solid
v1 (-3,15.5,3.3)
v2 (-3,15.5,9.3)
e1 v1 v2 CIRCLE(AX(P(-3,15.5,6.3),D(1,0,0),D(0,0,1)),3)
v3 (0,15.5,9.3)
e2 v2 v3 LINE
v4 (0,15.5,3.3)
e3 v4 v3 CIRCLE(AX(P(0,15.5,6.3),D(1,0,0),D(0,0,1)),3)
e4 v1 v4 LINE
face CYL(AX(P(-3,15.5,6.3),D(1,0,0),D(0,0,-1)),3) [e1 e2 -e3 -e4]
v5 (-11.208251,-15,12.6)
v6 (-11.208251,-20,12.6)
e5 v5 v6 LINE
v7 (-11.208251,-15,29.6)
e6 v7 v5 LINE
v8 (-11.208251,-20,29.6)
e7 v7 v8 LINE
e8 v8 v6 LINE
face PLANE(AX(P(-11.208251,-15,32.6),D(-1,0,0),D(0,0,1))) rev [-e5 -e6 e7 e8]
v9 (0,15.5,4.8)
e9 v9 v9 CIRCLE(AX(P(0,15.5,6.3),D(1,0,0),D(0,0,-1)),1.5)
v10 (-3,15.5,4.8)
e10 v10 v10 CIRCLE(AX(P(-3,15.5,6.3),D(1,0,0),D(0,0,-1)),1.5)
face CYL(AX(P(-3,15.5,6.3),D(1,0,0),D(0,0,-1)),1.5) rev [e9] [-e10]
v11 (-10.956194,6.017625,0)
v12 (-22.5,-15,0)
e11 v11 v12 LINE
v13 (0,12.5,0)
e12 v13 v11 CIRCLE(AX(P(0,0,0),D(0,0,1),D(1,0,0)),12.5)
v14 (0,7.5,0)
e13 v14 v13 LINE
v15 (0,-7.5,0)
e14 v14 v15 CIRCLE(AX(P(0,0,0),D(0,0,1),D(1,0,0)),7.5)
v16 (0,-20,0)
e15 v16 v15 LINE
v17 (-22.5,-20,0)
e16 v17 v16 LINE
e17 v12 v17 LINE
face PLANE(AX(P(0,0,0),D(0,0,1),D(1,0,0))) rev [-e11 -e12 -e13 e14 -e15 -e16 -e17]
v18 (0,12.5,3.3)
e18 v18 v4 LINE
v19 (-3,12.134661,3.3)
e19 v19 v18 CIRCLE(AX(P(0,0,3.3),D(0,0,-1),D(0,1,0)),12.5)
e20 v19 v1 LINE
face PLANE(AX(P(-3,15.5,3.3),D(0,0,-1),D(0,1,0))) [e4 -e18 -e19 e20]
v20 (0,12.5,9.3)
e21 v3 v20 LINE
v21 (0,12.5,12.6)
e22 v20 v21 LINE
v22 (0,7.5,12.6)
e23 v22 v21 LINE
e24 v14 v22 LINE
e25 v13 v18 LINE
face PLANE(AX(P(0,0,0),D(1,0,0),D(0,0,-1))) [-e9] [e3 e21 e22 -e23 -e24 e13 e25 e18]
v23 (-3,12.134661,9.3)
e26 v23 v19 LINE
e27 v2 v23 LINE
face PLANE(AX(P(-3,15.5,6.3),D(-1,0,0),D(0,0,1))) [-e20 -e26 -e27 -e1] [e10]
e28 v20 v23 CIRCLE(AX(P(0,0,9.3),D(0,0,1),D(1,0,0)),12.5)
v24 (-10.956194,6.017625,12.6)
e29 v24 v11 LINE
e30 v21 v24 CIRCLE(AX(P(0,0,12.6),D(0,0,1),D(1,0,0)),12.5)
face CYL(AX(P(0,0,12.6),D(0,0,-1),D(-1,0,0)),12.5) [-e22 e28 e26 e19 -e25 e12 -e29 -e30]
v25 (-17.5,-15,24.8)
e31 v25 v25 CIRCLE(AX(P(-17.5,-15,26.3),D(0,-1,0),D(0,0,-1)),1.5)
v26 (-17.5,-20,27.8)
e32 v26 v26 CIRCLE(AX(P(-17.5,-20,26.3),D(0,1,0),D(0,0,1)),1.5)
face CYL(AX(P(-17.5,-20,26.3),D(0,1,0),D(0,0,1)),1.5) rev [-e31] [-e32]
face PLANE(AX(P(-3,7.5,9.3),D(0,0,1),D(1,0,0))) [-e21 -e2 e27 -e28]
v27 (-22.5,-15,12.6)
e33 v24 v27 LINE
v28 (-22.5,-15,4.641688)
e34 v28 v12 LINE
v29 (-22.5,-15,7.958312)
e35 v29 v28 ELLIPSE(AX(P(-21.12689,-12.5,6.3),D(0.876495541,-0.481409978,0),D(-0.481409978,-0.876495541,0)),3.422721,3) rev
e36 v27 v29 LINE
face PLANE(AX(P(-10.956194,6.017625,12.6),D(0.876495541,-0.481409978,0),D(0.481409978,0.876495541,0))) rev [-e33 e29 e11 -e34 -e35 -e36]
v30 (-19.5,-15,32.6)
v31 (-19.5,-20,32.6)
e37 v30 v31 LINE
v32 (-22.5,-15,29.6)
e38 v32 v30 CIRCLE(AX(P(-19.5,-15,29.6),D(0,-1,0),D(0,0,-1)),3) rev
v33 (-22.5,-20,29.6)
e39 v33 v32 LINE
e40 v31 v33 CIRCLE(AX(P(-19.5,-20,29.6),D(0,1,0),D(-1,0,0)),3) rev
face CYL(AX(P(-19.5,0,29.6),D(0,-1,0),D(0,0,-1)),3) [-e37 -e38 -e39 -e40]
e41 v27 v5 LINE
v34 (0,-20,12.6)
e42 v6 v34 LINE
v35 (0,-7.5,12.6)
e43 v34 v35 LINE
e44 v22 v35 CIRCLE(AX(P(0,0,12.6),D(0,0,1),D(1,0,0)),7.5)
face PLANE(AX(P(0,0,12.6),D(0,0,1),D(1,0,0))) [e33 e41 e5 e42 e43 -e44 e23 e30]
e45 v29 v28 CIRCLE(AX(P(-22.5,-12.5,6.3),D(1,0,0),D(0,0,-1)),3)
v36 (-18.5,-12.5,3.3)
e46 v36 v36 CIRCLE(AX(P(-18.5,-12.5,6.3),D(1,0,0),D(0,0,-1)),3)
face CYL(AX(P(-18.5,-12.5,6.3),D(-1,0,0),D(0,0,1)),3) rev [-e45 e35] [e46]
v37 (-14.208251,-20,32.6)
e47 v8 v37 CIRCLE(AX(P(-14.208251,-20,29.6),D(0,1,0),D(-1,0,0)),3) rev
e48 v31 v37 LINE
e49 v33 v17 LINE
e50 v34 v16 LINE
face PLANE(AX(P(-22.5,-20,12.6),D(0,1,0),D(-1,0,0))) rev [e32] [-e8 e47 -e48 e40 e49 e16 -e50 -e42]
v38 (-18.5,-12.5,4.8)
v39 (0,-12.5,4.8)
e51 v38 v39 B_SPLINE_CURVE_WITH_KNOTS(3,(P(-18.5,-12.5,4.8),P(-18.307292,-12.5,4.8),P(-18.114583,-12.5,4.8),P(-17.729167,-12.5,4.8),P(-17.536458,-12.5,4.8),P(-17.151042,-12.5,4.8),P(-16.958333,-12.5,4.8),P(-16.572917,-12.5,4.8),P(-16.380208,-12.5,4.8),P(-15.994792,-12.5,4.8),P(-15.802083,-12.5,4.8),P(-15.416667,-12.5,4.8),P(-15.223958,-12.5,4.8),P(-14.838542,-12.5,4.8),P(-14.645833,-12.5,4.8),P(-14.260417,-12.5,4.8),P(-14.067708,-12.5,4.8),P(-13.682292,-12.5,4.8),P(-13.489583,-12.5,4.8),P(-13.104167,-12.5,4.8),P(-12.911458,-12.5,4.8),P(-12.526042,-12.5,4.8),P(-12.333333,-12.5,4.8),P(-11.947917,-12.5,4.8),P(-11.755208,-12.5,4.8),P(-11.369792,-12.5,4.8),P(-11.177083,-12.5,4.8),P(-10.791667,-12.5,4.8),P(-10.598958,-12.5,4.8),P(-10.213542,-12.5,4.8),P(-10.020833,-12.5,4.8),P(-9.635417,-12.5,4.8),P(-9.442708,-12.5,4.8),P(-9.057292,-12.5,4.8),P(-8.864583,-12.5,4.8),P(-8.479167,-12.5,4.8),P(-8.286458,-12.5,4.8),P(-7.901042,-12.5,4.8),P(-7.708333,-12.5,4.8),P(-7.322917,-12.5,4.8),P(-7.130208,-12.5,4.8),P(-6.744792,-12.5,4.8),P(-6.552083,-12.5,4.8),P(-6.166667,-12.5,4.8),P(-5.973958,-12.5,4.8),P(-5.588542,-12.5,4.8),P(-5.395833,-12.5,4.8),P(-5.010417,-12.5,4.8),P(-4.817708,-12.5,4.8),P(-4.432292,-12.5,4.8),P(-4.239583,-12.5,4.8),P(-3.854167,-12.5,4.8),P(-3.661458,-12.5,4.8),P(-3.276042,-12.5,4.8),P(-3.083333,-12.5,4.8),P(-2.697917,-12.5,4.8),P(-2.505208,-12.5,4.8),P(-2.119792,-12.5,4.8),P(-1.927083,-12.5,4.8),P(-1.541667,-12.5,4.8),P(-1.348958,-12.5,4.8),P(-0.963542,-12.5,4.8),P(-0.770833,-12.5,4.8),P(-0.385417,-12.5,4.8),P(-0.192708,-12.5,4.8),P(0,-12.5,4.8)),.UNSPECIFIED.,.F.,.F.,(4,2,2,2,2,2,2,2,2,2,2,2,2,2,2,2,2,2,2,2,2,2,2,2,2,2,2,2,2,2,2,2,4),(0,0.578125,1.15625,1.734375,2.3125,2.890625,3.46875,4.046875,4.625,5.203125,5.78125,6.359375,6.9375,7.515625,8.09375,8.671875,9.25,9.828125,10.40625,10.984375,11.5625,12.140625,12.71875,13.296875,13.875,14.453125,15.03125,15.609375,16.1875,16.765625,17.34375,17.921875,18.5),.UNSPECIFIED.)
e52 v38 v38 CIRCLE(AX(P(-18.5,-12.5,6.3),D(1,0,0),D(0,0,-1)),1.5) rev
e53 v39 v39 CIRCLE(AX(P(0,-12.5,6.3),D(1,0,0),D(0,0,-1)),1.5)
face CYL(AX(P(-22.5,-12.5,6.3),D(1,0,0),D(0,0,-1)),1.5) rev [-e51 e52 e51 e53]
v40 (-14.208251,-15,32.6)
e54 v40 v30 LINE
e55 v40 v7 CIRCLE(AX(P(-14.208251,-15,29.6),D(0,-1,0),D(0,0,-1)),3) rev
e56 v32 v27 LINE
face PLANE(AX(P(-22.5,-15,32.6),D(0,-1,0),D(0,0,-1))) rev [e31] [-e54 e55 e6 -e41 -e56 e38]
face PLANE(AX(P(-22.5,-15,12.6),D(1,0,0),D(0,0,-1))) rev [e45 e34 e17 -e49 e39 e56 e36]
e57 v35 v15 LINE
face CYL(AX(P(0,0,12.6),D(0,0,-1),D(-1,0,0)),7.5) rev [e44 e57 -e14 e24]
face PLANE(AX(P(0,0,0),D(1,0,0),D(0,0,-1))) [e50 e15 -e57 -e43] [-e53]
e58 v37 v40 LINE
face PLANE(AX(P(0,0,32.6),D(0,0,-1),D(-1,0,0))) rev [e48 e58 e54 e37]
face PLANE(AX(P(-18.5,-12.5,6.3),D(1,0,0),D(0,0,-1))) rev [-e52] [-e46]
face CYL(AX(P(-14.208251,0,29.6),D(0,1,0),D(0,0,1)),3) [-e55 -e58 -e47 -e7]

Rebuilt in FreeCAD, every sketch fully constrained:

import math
import FreeCAD as App
import Part
import Sketcher
from FreeCAD import Vector
Q = App.Units.Quantity


def edges_at(feature, points):
    """Names of the edges that pass closest to the given points."""
    edges = feature.Shape.Edges
    near = lambda p: min(range(len(edges)), key=lambda i: edges[i].distToShape(Part.Vertex(*p))[0])
    return sorted({f"Edge{near(p) + 1}" for p in points})


def add_polygon(sketch, points):
    """Adds a closed chain of lines whose ends are joined by coincident constraints."""
    first, n = sketch.GeometryCount, len(points)
    for a, b in zip(points, points[1:] + points[:1]):
        sketch.addGeometry(Part.LineSegment(App.Vector(*a, 0), App.Vector(*b, 0)), False)
    for i in range(n):
        sketch.addConstraint(Sketcher.Constraint("Coincident", first + i, 2, first + (i + 1) % n, 1))

doc = App.newDocument("Part")
body = doc.addObject("PartDesign::Body", "Body")

# Sketch on XY plane
sketch1 = doc.addObject("Sketcher::SketchObject", "Sketch")
body.addObject(sketch1)
sketch1.AttachmentSupport = (doc.XY_Plane, [""])
sketch1.MapMode = "FlatFace"
sketch1.addGeometry([
    Part.LineSegment(Vector(-10.956194, 6.017625, 0), Vector(-22.5, -15, 0)),  # 0
    Part.LineSegment(Vector(-22.5, -15, 0), Vector(-22.5, -20, 0)),  # 1
    Part.LineSegment(Vector(-22.5, -20, 0), Vector(22.5, -20, 0)),  # 2
    Part.LineSegment(Vector(22.5, -20, 0), Vector(22.5, -15, 0)),  # 3
    Part.LineSegment(Vector(22.5, -15, 0), Vector(10.956194, 6.017625, 0)),  # 4
    Part.ArcOfCircle(Part.Circle(Vector(0, 0, 0), Vector(0, 0, 1), 12.5), math.radians(28.77753), math.radians(151.22247)),  # 5
    Part.Circle(Vector(0, 0, 0), Vector(0, 0, 1), 7.5),  # 6
], False)
sketch1.addConstraint([
    Sketcher.Constraint("Coincident", 0, 2, 1, 1),
    Sketcher.Constraint("Coincident", 1, 2, 2, 1),
    Sketcher.Constraint("Coincident", 2, 2, 3, 1),
    Sketcher.Constraint("Coincident", 3, 2, 4, 1),
    Sketcher.Constraint("Tangent", 4, 2, 5, 1),
    Sketcher.Constraint("Tangent", 5, 2, 0, 1),
    Sketcher.Constraint("Vertical", 1),
    Sketcher.Constraint("Horizontal", 2),
    Sketcher.Constraint("Vertical", 3),
    Sketcher.Constraint("Coincident", 5, 3, -1, 1),
    Sketcher.Constraint("Coincident", 6, 3, -1, 1),
    Sketcher.Constraint("Symmetric", 0, 2, 3, 2, -2),
    Sketcher.Constraint("Diameter", 6, Q("15 mm")),
    Sketcher.Constraint("Radius", 5, Q("12.5 mm")),
    Sketcher.Constraint("DistanceX", 2, 1, 2, 2, Q("45 mm")),
    Sketcher.Constraint("DistanceY", 1, 2, 1, 1, Q("5 mm")),
    Sketcher.Constraint("DistanceY", 0, 2, -1, 1, Q("15 mm")),
])
pad1 = doc.addObject("PartDesign::Pad", "Pad")
body.addObject(pad1)
pad1.Profile = sketch1
pad1.Length = 12.6

# Sketch on XY plane
sketch2 = doc.addObject("Sketcher::SketchObject", "Sketch001")
body.addObject(sketch2)
sketch2.AttachmentSupport = (doc.XY_Plane, [""])
sketch2.MapMode = "FlatFace"
add_polygon(sketch2, [(-22.5, -15), (-22.5, -20), (-11.208251, -20), (-11.208251, -15)])  # lines 0-3
add_polygon(sketch2, [(11.208251, -15), (11.208251, -20), (22.5, -20), (22.5, -15)])  # lines 4-7
sketch2.addConstraint([
    Sketcher.Constraint("Vertical", 0),
    Sketcher.Constraint("Horizontal", 1),
    Sketcher.Constraint("Vertical", 2),
    Sketcher.Constraint("Horizontal", 3),
    Sketcher.Constraint("Vertical", 4),
    Sketcher.Constraint("Horizontal", 5),
    Sketcher.Constraint("Vertical", 6),
    Sketcher.Constraint("Horizontal", 7),
    Sketcher.Constraint("Symmetric", 1, 2, 4, 2, -2),
    Sketcher.Constraint("Symmetric", 3, 2, 6, 2, -2),
    Sketcher.Constraint("DistanceY", 0, 2, 0, 1, Q("5 mm")),
    Sketcher.Constraint("DistanceY", 0, 2, -1, 1, Q("20 mm")),
    Sketcher.Constraint("DistanceX", 0, 2, 5, 2, Q("45 mm")),
    Sketcher.Constraint("DistanceX", 1, 1, 1, 2, Q("11.291749 mm")),
])
pad2 = doc.addObject("PartDesign::Pad", "Pad001")
body.addObject(pad2)
pad2.Profile = sketch2
pad2.Length = 32.6

# Sketch on XZ plane
sketch3 = doc.addObject("Sketcher::SketchObject", "Sketch002")
body.addObject(sketch3)
sketch3.AttachmentSupport = (doc.XZ_Plane, [""])
sketch3.MapMode = "FlatFace"
sketch3.addGeometry([
    Part.Circle(Vector(-17.5, 26.3, 0), Vector(0, 0, 1), 1.5),
    Part.Circle(Vector(17.5, 26.3, 0), Vector(0, 0, 1), 1.5),
], False)
sketch3.addConstraint([
    Sketcher.Constraint("Equal", 0, 1),
    Sketcher.Constraint("Symmetric", 0, 3, 1, 3, -2),
    Sketcher.Constraint("Diameter", 0, Q("3 mm")),
    Sketcher.Constraint("DistanceX", 0, 3, 1, 3, Q("35 mm")),
    Sketcher.Constraint("DistanceY", -1, 1, 0, 3, Q("26.3 mm")),
])
pocket1 = doc.addObject("PartDesign::Pocket", "Pocket")
body.addObject(pocket1)
pocket1.Profile = sketch3
pocket1.Type = "ThroughAll"
pocket1.Reversed = True
doc.recompute()

fillet = doc.addObject("PartDesign::Fillet", "Fillet")
body.addObject(fillet)
fillet.Base = (pocket1, edges_at(pocket1, [(-22.5, -17.5, 32.6), (-11.208, -17.5, 32.6), (11.208, -17.5, 32.6)]))
fillet.Radius = 3

# Sketch on XZ plane
sketch4 = doc.addObject("Sketcher::SketchObject", "Sketch003")
body.addObject(sketch4)
sketch4.AttachmentSupport = (doc.XZ_Plane, [""])
sketch4.MapMode = "FlatFace"
add_polygon(sketch4, [(22.5, 17.6), (22.5, 32.6), (25.5, 32.6), (25.5, 17.6)])  # lines 0-3
sketch4.addConstraint([
    Sketcher.Constraint("Vertical", 0),
    Sketcher.Constraint("Horizontal", 1),
    Sketcher.Constraint("Vertical", 2),
    Sketcher.Constraint("Horizontal", 3),
    Sketcher.Constraint("DistanceX", 1, 1, 1, 2, Q("3 mm")),
    Sketcher.Constraint("DistanceY", 0, 1, 0, 2, Q("15 mm")),
    Sketcher.Constraint("DistanceX", -1, 1, 0, 2, Q("22.5 mm")),
    Sketcher.Constraint("DistanceY", -1, 1, 0, 2, Q("32.6 mm")),
])
pad3 = doc.addObject("PartDesign::Pad", "Pad002")
body.addObject(pad3)
pad3.Profile = sketch4
pad3.Length = 20

# Sketch on YZ plane
sketch5 = doc.addObject("Sketcher::SketchObject", "Sketch004")
body.addObject(sketch5)
sketch5.AttachmentSupport = (doc.YZ_Plane, [""])
sketch5.MapMode = "FlatFace"
sketch5.addGeometry([
    Part.Circle(Vector(-3, 25.1, 0), Vector(0, 0, 1), 1.3),
    Part.Circle(Vector(-12.5, 25.1, 0), Vector(0, 0, 1), 1.3),
], False)
sketch5.addConstraint([
    Sketcher.Constraint("Equal", 0, 1),
    Sketcher.Constraint("Horizontal", 0, 3, 1, 3),
    Sketcher.Constraint("Diameter", 0, Q("2.6 mm")),
    Sketcher.Constraint("DistanceX", 0, 3, -1, 1, Q("3 mm")),
    Sketcher.Constraint("DistanceY", -1, 1, 0, 3, Q("25.1 mm")),
    Sketcher.Constraint("DistanceX", 1, 3, -1, 1, Q("12.5 mm")),
])
pocket2 = doc.addObject("PartDesign::Pocket", "Pocket001")
body.addObject(pocket2)
pocket2.Profile = sketch5
pocket2.Type = "ThroughAll"
pocket2.Reversed = True

# Sketch on YZ plane
sketch6 = doc.addObject("Sketcher::SketchObject", "Sketch005")
body.addObject(sketch6)
sketch6.AttachmentSupport = (doc.YZ_Plane, [""])
sketch6.MapMode = "FlatFace"
add_polygon(sketch6, [(13.355993, 33.760425), (-21.378314, 33.760425), (-21.378314, -2.242374), (13.355993, -2.242374)])  # lines 0-3
sketch6.addConstraint([
    Sketcher.Constraint("Horizontal", 0),
    Sketcher.Constraint("Vertical", 1),
    Sketcher.Constraint("Horizontal", 2),
    Sketcher.Constraint("Vertical", 3),
    Sketcher.Constraint("DistanceY", 1, 2, 1, 1, Q("36.0028 mm")),
    Sketcher.Constraint("DistanceX", 0, 2, 0, 1, Q("34.734307 mm")),
    Sketcher.Constraint("DistanceX", 0, 2, -1, 1, Q("21.378314 mm")),
    Sketcher.Constraint("DistanceY", -1, 1, 0, 2, Q("33.760425 mm")),
])
pocket3 = doc.addObject("PartDesign::Pocket", "Pocket002")
body.addObject(pocket3)
pocket3.Profile = sketch6
pocket3.Type = "ThroughAll"
pocket3.Reversed = True

# Sketch on YZ plane
sketch7 = doc.addObject("Sketcher::SketchObject", "Sketch006")
body.addObject(sketch7)
sketch7.AttachmentSupport = (doc.YZ_Plane, [""])
sketch7.MapMode = "FlatFace"
sketch7.addGeometry([
    Part.LineSegment(Vector(15.5, 9.3, 0), Vector(7.5, 9.3, 0)),  # 0
    Part.LineSegment(Vector(7.5, 9.3, 0), Vector(7.5, 3.3, 0)),  # 1
    Part.LineSegment(Vector(7.5, 3.3, 0), Vector(15.5, 3.3, 0)),  # 2
    Part.ArcOfCircle(Part.Circle(Vector(15.5, 6.3, 0), Vector(0, 0, 1), 3), math.radians(-90), math.radians(90)),  # 3
    Part.Circle(Vector(15.5, 6.3, 0), Vector(0, 0, 1), 1.5),  # 4
], False)
sketch7.addConstraint([
    Sketcher.Constraint("Coincident", 0, 2, 1, 1),
    Sketcher.Constraint("Coincident", 1, 2, 2, 1),
    Sketcher.Constraint("Tangent", 2, 2, 3, 1),
    Sketcher.Constraint("Tangent", 3, 2, 0, 1),
    Sketcher.Constraint("Horizontal", 0),
    Sketcher.Constraint("Vertical", 1),
    Sketcher.Constraint("Horizontal", 2),
    Sketcher.Constraint("Coincident", 4, 3, 3, 3),
    Sketcher.Constraint("Diameter", 4, Q("3 mm")),
    Sketcher.Constraint("Radius", 3, Q("3 mm")),
    Sketcher.Constraint("DistanceX", 0, 2, 0, 1, Q("8 mm")),
    Sketcher.Constraint("DistanceX", -1, 1, 3, 3, Q("15.5 mm")),
    Sketcher.Constraint("DistanceY", -1, 1, 3, 3, Q("6.3 mm")),
])
pad4 = doc.addObject("PartDesign::Pad", "Pad003")
body.addObject(pad4)
pad4.Profile = sketch7
pad4.Length = 3
pad4.Reversed = True

# Sketch on YZ plane
sketch8 = doc.addObject("Sketcher::SketchObject", "Sketch007")
body.addObject(sketch8)
sketch8.AttachmentSupport = (doc.YZ_Plane, [""])
sketch8.MapMode = "FlatFace"
sketch8.addGeometry(Part.Circle(Vector(-12.5, 6.3, 0), Vector(0, 0, 1), 1.5), False)
sketch8.addConstraint([
    Sketcher.Constraint("Diameter", 0, Q("3 mm")),
    Sketcher.Constraint("DistanceX", 0, 3, -1, 1, Q("12.5 mm")),
    Sketcher.Constraint("DistanceY", -1, 1, 0, 3, Q("6.3 mm")),
])
pocket4 = doc.addObject("PartDesign::Pocket", "Pocket003")
body.addObject(pocket4)
pocket4.Profile = sketch8
pocket4.Type = "ThroughAll"

# Sketch on YZ plane
sketch9 = doc.addObject("Sketcher::SketchObject", "Sketch008")
body.addObject(sketch9)
sketch9.AttachmentSupport = (doc.YZ_Plane, [""])
sketch9.MapMode = "FlatFace"
sketch9.AttachmentOffset = App.Placement(Vector(0, 0, -22.5), App.Rotation())
sketch9.addGeometry(Part.Circle(Vector(-12.5, 6.3, 0), Vector(0, 0, 1), 3), False)
sketch9.addConstraint([
    Sketcher.Constraint("Diameter", 0, Q("6 mm")),
    Sketcher.Constraint("DistanceX", 0, 3, -1, 1, Q("12.5 mm")),
    Sketcher.Constraint("DistanceY", -1, 1, 0, 3, Q("6.3 mm")),
])
pocket5 = doc.addObject("PartDesign::Pocket", "Pocket004")
body.addObject(pocket5)
pocket5.Profile = sketch9
pocket5.Length = 4
pocket5.Reversed = True

doc.recompute()
